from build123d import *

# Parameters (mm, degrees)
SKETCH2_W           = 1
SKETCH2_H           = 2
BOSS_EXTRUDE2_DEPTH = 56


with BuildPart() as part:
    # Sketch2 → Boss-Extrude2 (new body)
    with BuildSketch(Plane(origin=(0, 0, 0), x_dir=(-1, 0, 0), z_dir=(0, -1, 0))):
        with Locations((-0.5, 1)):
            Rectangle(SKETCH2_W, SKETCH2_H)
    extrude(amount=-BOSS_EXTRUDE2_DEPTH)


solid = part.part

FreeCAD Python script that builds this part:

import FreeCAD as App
import Part
import Sketcher

doc = App.newDocument("Part")
params = doc.addObject("Spreadsheet::Sheet", "Params")
for row, (alias, value) in enumerate([
    ("sketch1_width", "1 mm"),
    ("sketch1_height", "2 mm"),
    ("pad1_length", "56 mm"),
], start=1):
    params.set(f"A{row}", alias)
    params.set(f"B{row}", "=" + value)
    params.setAlias(f"B{row}", alias)

body = doc.addObject("PartDesign::Body", "Body")

# Sketch on XZ plane
sketch1 = doc.addObject("Sketcher::SketchObject", "Sketch")
body.addObject(sketch1)
sketch1.AttachmentSupport = (doc.XZ_Plane, [""])
sketch1.MapMode = "FlatFace"
sketch1.addGeometry(Part.LineSegment(App.Vector(1, -2, 0), App.Vector(1, 0, 0)), False)
sketch1.addGeometry(Part.LineSegment(App.Vector(1, 0, 0), App.Vector(0, 0, 0)), False)
sketch1.addGeometry(Part.LineSegment(App.Vector(0, 0, 0), App.Vector(0, -2, 0)), False)
sketch1.addGeometry(Part.LineSegment(App.Vector(0, -2, 0), App.Vector(1, -2, 0)), False)
sketch1.addConstraint(Sketcher.Constraint("Coincident", 0, 2, 1, 1))
sketch1.addConstraint(Sketcher.Constraint("Coincident", 1, 2, 2, 1))
sketch1.addConstraint(Sketcher.Constraint("Coincident", 2, 2, 3, 1))
sketch1.addConstraint(Sketcher.Constraint("Coincident", 3, 2, 0, 1))
sketch1.addConstraint(Sketcher.Constraint("Vertical", 0))
sketch1.addConstraint(Sketcher.Constraint("Horizontal", 1))
sketch1.addConstraint(Sketcher.Constraint("Vertical", 2))
sketch1.addConstraint(Sketcher.Constraint("Horizontal", 3))
sketch1.addConstraint(Sketcher.Constraint("Coincident", 1, 2, -1, 1))
sketch1.addConstraint(Sketcher.Constraint("DistanceX", 1, 2, 1, 1, 1.0))
sketch1.addConstraint(Sketcher.Constraint("DistanceY", 0, 1, 0, 2, 2.0))
sketch1.setExpression("Constraints[9]", "Params.sketch1_width")
sketch1.setExpression("Constraints[10]", "Params.sketch1_height")
pad1 = doc.addObject("PartDesign::Pad", "Pad")
body.addObject(pad1)
pad1.Profile = sketch1
pad1.setExpression("Length", "Params.pad1_length")
pad1.Reversed = True

doc.recompute()
